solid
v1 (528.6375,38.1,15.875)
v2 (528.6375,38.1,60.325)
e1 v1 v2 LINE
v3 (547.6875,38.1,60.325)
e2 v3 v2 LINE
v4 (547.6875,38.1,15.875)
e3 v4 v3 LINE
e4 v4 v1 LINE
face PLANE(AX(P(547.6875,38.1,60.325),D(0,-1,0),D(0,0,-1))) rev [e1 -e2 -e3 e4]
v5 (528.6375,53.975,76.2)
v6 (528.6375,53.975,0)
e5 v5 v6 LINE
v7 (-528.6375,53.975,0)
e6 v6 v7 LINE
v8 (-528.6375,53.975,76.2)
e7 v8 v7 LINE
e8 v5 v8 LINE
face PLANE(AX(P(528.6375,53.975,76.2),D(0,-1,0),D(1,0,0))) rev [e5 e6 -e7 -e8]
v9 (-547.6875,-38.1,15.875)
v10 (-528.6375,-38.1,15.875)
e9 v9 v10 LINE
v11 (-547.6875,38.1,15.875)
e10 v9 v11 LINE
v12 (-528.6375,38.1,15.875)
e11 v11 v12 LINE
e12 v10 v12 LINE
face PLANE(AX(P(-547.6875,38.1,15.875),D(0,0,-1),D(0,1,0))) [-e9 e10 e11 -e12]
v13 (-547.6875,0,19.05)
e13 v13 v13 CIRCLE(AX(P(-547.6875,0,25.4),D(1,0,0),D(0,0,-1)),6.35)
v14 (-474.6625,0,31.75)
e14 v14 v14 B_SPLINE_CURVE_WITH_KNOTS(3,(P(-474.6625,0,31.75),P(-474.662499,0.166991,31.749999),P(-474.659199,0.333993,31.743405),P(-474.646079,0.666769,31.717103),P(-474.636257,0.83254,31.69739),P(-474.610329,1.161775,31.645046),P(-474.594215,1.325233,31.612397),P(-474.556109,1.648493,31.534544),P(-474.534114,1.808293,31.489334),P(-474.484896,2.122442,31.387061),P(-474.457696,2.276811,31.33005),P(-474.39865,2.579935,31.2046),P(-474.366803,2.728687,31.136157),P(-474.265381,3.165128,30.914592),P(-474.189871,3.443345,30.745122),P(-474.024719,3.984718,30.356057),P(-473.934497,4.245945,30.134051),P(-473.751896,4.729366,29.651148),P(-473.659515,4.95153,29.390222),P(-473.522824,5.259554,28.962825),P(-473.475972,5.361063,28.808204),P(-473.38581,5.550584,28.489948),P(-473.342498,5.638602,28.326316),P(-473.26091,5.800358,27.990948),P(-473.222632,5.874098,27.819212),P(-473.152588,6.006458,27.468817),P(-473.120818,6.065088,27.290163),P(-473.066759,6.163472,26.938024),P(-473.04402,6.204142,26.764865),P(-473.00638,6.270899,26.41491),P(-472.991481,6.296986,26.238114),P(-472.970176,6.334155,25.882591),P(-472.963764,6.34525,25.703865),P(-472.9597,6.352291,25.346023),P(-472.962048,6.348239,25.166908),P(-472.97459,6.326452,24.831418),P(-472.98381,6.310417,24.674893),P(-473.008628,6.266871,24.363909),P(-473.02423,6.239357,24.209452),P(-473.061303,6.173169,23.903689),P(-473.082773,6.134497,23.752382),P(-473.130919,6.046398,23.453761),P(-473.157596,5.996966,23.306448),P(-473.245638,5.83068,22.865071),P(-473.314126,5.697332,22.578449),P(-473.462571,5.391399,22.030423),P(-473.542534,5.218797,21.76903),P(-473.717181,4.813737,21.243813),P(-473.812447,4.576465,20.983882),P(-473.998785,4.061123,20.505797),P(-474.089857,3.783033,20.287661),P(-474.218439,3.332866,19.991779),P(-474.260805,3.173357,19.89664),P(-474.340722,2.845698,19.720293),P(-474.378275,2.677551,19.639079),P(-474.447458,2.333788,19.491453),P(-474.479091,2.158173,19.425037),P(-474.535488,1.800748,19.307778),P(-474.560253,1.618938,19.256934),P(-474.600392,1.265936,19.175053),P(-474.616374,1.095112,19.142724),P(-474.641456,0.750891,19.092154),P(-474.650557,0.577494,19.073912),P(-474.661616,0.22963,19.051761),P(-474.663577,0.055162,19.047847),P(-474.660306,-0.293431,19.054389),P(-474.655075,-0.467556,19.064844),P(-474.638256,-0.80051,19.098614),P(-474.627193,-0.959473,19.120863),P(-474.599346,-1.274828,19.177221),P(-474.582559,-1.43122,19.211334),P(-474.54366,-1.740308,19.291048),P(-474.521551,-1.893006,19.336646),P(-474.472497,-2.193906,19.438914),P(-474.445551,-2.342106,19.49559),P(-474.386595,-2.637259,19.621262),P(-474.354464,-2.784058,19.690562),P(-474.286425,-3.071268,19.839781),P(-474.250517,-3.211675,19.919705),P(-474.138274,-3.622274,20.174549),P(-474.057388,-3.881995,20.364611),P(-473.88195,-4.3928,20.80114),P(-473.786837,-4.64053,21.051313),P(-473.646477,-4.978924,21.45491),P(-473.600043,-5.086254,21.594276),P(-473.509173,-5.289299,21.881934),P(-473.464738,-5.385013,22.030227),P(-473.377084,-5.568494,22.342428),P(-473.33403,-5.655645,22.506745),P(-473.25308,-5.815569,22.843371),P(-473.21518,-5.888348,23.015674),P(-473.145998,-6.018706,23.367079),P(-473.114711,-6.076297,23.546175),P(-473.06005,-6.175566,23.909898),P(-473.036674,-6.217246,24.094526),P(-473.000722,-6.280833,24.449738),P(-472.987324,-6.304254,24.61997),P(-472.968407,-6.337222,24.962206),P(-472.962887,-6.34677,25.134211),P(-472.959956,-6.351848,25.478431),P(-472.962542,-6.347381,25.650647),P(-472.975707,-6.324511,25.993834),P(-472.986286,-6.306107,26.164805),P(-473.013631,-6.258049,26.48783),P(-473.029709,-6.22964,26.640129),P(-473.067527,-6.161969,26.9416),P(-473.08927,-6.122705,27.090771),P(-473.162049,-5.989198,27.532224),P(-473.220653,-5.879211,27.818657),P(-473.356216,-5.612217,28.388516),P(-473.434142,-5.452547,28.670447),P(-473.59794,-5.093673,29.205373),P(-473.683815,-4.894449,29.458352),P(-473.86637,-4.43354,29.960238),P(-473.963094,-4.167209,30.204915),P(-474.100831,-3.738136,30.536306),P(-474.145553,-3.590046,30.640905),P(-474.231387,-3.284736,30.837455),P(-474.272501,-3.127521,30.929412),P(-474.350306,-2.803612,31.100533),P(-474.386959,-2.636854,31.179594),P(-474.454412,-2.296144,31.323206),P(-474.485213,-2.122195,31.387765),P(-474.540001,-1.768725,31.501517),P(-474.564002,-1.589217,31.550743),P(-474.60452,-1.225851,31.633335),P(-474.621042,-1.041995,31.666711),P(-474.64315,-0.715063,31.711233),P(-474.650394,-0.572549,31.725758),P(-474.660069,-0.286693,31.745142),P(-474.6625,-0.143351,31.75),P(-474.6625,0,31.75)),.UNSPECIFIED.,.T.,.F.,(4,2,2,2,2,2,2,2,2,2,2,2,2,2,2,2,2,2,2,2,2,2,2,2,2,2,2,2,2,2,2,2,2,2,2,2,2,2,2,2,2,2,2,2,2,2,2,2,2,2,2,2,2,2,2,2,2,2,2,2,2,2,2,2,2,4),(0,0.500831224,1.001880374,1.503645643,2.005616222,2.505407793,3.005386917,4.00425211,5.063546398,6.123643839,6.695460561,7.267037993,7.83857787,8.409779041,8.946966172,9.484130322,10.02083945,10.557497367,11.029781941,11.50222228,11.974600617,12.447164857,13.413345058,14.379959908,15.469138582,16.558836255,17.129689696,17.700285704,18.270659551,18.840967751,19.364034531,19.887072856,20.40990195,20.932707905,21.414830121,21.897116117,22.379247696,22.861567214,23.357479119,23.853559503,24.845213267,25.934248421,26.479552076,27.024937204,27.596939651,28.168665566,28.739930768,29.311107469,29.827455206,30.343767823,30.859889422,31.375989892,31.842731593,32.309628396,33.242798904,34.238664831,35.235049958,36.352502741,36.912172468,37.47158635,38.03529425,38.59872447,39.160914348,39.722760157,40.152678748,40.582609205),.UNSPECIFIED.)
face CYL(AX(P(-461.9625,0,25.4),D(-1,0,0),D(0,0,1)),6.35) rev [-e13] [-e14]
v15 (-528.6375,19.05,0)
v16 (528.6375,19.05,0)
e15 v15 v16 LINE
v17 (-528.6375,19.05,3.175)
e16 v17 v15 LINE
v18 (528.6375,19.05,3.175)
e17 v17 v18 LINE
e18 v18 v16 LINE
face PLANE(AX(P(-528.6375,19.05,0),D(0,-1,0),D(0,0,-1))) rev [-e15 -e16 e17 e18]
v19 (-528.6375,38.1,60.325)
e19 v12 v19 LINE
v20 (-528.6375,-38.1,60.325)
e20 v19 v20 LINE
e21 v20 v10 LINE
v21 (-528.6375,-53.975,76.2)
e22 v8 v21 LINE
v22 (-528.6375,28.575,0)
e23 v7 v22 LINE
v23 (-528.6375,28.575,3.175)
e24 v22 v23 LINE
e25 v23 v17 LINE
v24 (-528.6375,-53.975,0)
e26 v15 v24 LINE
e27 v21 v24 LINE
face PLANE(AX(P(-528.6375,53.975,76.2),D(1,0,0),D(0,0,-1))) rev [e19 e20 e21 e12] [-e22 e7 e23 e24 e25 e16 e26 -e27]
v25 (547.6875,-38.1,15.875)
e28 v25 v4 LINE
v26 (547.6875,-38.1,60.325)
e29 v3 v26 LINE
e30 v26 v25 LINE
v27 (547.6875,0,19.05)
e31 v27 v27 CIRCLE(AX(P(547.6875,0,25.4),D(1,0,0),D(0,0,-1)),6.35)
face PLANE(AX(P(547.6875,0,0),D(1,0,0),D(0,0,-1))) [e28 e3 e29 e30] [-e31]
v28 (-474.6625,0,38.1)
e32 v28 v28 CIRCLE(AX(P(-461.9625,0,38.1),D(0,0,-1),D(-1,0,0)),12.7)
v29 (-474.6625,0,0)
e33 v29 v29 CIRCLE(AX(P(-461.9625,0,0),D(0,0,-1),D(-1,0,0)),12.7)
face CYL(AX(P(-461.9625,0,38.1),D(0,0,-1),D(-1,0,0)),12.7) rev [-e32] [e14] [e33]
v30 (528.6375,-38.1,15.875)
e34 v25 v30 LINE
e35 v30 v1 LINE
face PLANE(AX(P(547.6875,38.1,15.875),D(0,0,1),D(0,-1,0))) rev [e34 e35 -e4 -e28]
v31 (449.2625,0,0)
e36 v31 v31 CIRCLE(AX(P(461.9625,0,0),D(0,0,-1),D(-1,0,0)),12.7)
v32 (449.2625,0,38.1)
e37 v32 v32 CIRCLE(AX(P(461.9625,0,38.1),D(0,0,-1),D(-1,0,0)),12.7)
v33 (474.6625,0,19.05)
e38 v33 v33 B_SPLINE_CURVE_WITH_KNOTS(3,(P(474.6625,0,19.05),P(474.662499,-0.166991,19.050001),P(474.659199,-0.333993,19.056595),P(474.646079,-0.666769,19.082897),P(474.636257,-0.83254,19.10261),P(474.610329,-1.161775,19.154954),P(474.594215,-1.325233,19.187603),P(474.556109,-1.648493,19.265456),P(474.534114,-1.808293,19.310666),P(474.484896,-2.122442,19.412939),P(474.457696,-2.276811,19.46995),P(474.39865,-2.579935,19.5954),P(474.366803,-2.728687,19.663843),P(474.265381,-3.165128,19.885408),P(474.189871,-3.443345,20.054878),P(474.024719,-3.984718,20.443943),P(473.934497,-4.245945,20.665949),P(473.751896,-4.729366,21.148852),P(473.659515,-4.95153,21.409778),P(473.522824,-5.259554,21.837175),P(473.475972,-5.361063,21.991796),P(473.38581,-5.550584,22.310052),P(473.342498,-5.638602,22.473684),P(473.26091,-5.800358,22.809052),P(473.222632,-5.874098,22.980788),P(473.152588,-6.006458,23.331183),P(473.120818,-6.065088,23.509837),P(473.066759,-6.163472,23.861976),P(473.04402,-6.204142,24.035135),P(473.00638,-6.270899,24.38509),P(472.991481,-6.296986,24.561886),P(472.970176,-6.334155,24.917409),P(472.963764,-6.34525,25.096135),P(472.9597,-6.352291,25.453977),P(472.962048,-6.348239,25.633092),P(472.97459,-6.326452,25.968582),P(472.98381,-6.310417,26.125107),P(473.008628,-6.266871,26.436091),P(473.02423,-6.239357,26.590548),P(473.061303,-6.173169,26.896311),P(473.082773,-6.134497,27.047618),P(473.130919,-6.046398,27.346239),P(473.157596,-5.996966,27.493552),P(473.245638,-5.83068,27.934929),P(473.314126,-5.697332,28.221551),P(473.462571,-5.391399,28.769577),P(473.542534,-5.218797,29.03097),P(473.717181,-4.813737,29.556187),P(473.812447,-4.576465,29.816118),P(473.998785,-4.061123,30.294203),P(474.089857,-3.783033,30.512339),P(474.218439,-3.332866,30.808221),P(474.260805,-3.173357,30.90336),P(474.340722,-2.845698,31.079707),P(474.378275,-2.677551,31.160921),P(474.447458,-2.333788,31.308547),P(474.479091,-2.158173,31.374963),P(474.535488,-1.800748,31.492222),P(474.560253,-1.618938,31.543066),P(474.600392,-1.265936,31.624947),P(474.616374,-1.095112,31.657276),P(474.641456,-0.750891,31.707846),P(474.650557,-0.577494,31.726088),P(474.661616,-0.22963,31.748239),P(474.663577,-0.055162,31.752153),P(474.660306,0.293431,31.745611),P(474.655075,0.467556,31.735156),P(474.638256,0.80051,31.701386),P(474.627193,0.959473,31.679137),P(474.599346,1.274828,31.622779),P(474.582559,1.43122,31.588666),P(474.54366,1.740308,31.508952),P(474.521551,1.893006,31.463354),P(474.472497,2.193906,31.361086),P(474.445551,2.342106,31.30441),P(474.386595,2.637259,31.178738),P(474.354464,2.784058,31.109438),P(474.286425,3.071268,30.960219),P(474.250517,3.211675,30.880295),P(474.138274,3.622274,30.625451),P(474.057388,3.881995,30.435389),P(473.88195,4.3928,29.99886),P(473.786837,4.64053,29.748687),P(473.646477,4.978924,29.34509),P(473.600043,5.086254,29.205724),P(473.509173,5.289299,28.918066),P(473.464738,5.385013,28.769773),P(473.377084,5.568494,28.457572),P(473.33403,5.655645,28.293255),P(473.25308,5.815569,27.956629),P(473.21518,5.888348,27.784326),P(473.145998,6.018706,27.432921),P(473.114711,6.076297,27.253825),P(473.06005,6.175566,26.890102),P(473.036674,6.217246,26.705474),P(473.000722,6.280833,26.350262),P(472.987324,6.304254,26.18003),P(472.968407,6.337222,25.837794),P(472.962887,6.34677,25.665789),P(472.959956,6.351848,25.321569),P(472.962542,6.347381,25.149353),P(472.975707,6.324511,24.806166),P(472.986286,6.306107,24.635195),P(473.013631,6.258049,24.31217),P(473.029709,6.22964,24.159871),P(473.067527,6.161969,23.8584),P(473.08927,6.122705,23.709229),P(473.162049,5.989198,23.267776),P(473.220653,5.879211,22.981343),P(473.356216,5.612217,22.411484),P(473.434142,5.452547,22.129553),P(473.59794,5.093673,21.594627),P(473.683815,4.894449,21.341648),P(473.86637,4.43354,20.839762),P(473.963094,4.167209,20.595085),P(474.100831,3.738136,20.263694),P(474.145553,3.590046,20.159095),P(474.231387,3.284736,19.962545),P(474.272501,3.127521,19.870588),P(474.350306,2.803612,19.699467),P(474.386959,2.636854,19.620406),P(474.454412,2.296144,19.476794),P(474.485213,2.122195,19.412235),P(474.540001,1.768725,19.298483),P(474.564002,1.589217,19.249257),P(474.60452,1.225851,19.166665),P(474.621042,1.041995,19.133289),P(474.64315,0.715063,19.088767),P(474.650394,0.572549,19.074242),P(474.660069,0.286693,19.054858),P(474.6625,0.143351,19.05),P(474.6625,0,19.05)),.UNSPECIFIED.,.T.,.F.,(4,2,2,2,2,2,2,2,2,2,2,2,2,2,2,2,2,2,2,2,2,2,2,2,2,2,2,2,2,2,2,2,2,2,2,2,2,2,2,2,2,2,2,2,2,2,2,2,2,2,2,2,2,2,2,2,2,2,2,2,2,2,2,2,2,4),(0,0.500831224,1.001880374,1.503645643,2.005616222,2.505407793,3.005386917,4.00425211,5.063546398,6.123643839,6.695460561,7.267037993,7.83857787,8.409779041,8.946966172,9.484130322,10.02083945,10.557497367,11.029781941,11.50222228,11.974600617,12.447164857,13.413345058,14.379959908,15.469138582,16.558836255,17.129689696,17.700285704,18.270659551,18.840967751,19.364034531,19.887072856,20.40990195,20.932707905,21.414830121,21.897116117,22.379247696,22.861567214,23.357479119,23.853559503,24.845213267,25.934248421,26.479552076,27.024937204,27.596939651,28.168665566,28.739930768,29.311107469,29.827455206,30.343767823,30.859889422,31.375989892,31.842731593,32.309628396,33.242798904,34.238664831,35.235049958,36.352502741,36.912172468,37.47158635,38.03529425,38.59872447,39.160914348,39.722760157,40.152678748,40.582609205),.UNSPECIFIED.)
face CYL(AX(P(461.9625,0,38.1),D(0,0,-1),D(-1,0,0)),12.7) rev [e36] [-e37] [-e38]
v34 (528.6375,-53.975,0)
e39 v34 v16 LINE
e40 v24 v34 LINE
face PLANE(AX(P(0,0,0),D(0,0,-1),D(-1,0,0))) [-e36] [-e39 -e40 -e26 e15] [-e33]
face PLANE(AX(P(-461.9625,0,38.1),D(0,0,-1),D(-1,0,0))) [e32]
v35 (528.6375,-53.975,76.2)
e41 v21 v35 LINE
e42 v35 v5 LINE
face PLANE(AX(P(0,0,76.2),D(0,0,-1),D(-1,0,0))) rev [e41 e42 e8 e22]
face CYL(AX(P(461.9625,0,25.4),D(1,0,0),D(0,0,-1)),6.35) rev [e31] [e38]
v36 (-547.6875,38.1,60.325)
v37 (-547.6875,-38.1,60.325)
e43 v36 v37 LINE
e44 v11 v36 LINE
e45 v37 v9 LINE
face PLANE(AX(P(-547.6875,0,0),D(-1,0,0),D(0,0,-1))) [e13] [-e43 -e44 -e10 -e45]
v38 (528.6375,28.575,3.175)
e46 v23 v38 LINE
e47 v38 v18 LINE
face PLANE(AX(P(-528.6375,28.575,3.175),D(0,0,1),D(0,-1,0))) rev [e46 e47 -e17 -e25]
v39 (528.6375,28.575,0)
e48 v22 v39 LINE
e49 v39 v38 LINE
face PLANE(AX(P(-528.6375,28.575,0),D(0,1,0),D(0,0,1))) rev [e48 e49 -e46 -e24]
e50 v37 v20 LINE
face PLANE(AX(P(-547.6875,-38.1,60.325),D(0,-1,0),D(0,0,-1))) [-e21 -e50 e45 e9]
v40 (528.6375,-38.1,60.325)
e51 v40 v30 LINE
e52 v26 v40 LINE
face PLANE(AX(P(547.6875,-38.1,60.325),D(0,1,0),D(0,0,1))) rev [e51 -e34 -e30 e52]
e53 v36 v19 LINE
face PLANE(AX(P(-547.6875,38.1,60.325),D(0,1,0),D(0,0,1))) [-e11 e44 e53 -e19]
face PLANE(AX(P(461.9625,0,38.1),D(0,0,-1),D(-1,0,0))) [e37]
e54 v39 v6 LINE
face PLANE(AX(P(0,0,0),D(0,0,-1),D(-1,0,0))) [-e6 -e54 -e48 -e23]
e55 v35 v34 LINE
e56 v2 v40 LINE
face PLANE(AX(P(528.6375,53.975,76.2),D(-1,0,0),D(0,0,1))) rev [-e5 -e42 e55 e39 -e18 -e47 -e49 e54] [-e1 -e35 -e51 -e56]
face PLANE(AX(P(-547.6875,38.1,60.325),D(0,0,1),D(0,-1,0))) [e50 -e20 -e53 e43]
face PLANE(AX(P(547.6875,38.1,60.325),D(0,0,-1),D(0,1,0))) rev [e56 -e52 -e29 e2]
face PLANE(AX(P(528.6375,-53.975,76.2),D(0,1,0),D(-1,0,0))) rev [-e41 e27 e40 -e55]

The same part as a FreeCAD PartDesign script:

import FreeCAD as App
import Part
import Sketcher
Q = App.Units.Quantity

doc = App.newDocument("Part")
body = doc.addObject("PartDesign::Body", "Body")

sketch1 = body.newObject("Sketcher::SketchObject", "Sketch")
sketch1.AttachmentSupport = (doc.getObject("XY_Plane"), [""])
sketch1.MapMode = "FlatFace"
sketch1.addGeometry(Part.LineSegment(App.Vector(-529, 54, 0), App.Vector(-529, -54, 0)), False)
sketch1.addGeometry(Part.LineSegment(App.Vector(-529, -54, 0), App.Vector(529, -54, 0)), False)
sketch1.addGeometry(Part.LineSegment(App.Vector(529, -54, 0), App.Vector(529, 54, 0)), False)
sketch1.addGeometry(Part.LineSegment(App.Vector(529, 54, 0), App.Vector(-529, 54, 0)), False)
sketch1.addConstraint(Sketcher.Constraint("Coincident", 0, 2, 1, 1))
sketch1.addConstraint(Sketcher.Constraint("Coincident", 1, 2, 2, 1))
sketch1.addConstraint(Sketcher.Constraint("Coincident", 2, 2, 3, 1))
sketch1.addConstraint(Sketcher.Constraint("Coincident", 3, 2, 0, 1))
sketch1.addConstraint(Sketcher.Constraint("Vertical", 0))
sketch1.addConstraint(Sketcher.Constraint("Horizontal", 1))
sketch1.addConstraint(Sketcher.Constraint("Vertical", 2))
sketch1.addConstraint(Sketcher.Constraint("Horizontal", 3))
sketch1.addConstraint(Sketcher.Constraint("Symmetric", 0, 2, 2, 2, -1, 1))
sketch1.addConstraint(Sketcher.Constraint("DistanceY", 0, 2, 0, 1, Q("4.25 in")))
sketch1.addConstraint(Sketcher.Constraint("DistanceX", 1, 1, 1, 2, Q("41.625 in")))
pad1 = body.newObject("PartDesign::Pad", "Pad")
pad1.Profile = sketch1
pad1.Length = Q("3 in")

sketch2 = body.newObject("Sketcher::SketchObject", "Sketch001")
sketch2.AttachmentSupport = (doc.getObject("YZ_Plane"), [""])
sketch2.MapMode = "FlatFace"
sketch2.AttachmentOffset = App.Placement(App.Vector(0, 0, 20.8125 * 25.4), App.Rotation())
sketch2.addGeometry(Part.LineSegment(App.Vector(38, 60, 0), App.Vector(-38, 60, 0)), False)
sketch2.addGeometry(Part.LineSegment(App.Vector(-38, 60, 0), App.Vector(-38, 16, 0)), False)
sketch2.addGeometry(Part.LineSegment(App.Vector(-38, 16, 0), App.Vector(38, 16, 0)), False)
sketch2.addGeometry(Part.LineSegment(App.Vector(38, 16, 0), App.Vector(38, 60, 0)), False)
sketch2.addConstraint(Sketcher.Constraint("Coincident", 0, 2, 1, 1))
sketch2.addConstraint(Sketcher.Constraint("Coincident", 1, 2, 2, 1))
sketch2.addConstraint(Sketcher.Constraint("Coincident", 2, 2, 3, 1))
sketch2.addConstraint(Sketcher.Constraint("Coincident", 3, 2, 0, 1))
sketch2.addConstraint(Sketcher.Constraint("Horizontal", 0))
sketch2.addConstraint(Sketcher.Constraint("Vertical", 1))
sketch2.addConstraint(Sketcher.Constraint("Horizontal", 2))
sketch2.addConstraint(Sketcher.Constraint("Vertical", 3))
sketch2.addConstraint(Sketcher.Constraint("DistanceX", 0, 2, 0, 1, Q("3 in")))
sketch2.addConstraint(Sketcher.Constraint("DistanceY", 1, 2, 1, 1, Q("1.75 in")))
sketch2.addConstraint(Sketcher.Constraint("DistanceX", 0, 2, -1, 1, Q("1.5 in")))
sketch2.addConstraint(Sketcher.Constraint("DistanceY", -1, 1, 0, 2, Q("2.375 in")))
pad2 = body.newObject("PartDesign::Pad", "Pad001")
pad2.Profile = sketch2
pad2.Length = Q("0.75 in")

sketch3 = body.newObject("Sketcher::SketchObject", "Sketch002")
sketch3.AttachmentSupport = (doc.getObject("YZ_Plane"), [""])
sketch3.MapMode = "FlatFace"
sketch3.AttachmentOffset = App.Placement(App.Vector(0, 0, 21.5625 * 25.4), App.Rotation())
sketch3.addGeometry(Part.Circle(App.Vector(0, 25, 0), App.Vector(0, 0, 1), 6), False)
sketch3.addConstraint(Sketcher.Constraint("PointOnObject", 0, 3, -2))
sketch3.addConstraint(Sketcher.Constraint("Diameter", 0, Q("0.5 in")))
sketch3.addConstraint(Sketcher.Constraint("DistanceY", -1, 1, 0, 3, Q("1 in")))
pocket1 = body.newObject("PartDesign::Pocket", "Pocket")
pocket1.Profile = sketch3
pocket1.Length = Q("3.375 in")

sketch4 = body.newObject("Sketcher::SketchObject", "Sketch003")
sketch4.AttachmentSupport = (doc.getObject("YZ_Plane"), [""])
sketch4.MapMode = "FlatFace"
sketch4.AttachmentOffset = App.Placement(App.Vector(0, 0, 20.8125 * 25.4), App.Rotation())
sketch4.addGeometry(Part.LineSegment(App.Vector(28.6, 3.2, 0), App.Vector(19.1, 3.2, 0)), False)
sketch4.addGeometry(Part.LineSegment(App.Vector(19.1, 3.2, 0), App.Vector(19.1, 0, 0)), False)
sketch4.addGeometry(Part.LineSegment(App.Vector(19.1, 0, 0), App.Vector(28.6, 0, 0)), False)
sketch4.addGeometry(Part.LineSegment(App.Vector(28.6, 0, 0), App.Vector(28.6, 3.2, 0)), False)
sketch4.addConstraint(Sketcher.Constraint("Coincident", 0, 2, 1, 1))
sketch4.addConstraint(Sketcher.Constraint("Coincident", 1, 2, 2, 1))
sketch4.addConstraint(Sketcher.Constraint("Coincident", 2, 2, 3, 1))
sketch4.addConstraint(Sketcher.Constraint("Coincident", 3, 2, 0, 1))
sketch4.addConstraint(Sketcher.Constraint("Horizontal", 0))
sketch4.addConstraint(Sketcher.Constraint("Vertical", 1))
sketch4.addConstraint(Sketcher.Constraint("Horizontal", 2))
sketch4.addConstraint(Sketcher.Constraint("Vertical", 3))
sketch4.addConstraint(Sketcher.Constraint("PointOnObject", 1, 2, -1))
sketch4.addConstraint(Sketcher.Constraint("DistanceX", 0, 2, 0, 1, Q("0.375 in")))
sketch4.addConstraint(Sketcher.Constraint("DistanceY", 1, 2, 1, 1, Q("0.125 in")))
sketch4.addConstraint(Sketcher.Constraint("DistanceX", -1, 1, 0, 2, Q("0.75 in")))
pocket2 = body.newObject("PartDesign::Pocket", "Pocket001")
pocket2.Profile = sketch4
pocket2.Type = "ThroughAll"
doc.recompute()

mirrored = body.newObject("PartDesign::Mirrored", "Mirrored")
mirrored.Originals = [pad2, pocket1]
mirrored.MirrorPlane = (doc.getObject("YZ_Plane"), [""])
body.Tip = mirrored

sketch5 = body.newObject("Sketcher::SketchObject", "Sketch004")
sketch5.AttachmentSupport = (doc.getObject("XY_Plane"), [""])
sketch5.MapMode = "FlatFace"
sketch5.addGeometry(Part.Circle(App.Vector(462, 0, 0), App.Vector(0, 0, 1), 13), False)
sketch5.addGeometry(Part.Circle(App.Vector(-462, 0, 0), App.Vector(0, 0, 1), 13), False)
sketch5.addConstraint(Sketcher.Constraint("Equal", 0, 1))
sketch5.addConstraint(Sketcher.Constraint("Symmetric", 0, 3, 1, 3, -1, 1))
sketch5.addConstraint(Sketcher.Constraint("PointOnObject", 0, 3, -1))
sketch5.addConstraint(Sketcher.Constraint("Diameter", 0, Q("1 in")))
sketch5.addConstraint(Sketcher.Constraint("DistanceX", -1, 1, 0, 3, Q("18.1875 in")))
pocket3 = body.newObject("PartDesign::Pocket", "Pocket002")
pocket3.Profile = sketch5
pocket3.Length = Q("1.5 in")
pocket3.Reversed = True

doc.recompute()
